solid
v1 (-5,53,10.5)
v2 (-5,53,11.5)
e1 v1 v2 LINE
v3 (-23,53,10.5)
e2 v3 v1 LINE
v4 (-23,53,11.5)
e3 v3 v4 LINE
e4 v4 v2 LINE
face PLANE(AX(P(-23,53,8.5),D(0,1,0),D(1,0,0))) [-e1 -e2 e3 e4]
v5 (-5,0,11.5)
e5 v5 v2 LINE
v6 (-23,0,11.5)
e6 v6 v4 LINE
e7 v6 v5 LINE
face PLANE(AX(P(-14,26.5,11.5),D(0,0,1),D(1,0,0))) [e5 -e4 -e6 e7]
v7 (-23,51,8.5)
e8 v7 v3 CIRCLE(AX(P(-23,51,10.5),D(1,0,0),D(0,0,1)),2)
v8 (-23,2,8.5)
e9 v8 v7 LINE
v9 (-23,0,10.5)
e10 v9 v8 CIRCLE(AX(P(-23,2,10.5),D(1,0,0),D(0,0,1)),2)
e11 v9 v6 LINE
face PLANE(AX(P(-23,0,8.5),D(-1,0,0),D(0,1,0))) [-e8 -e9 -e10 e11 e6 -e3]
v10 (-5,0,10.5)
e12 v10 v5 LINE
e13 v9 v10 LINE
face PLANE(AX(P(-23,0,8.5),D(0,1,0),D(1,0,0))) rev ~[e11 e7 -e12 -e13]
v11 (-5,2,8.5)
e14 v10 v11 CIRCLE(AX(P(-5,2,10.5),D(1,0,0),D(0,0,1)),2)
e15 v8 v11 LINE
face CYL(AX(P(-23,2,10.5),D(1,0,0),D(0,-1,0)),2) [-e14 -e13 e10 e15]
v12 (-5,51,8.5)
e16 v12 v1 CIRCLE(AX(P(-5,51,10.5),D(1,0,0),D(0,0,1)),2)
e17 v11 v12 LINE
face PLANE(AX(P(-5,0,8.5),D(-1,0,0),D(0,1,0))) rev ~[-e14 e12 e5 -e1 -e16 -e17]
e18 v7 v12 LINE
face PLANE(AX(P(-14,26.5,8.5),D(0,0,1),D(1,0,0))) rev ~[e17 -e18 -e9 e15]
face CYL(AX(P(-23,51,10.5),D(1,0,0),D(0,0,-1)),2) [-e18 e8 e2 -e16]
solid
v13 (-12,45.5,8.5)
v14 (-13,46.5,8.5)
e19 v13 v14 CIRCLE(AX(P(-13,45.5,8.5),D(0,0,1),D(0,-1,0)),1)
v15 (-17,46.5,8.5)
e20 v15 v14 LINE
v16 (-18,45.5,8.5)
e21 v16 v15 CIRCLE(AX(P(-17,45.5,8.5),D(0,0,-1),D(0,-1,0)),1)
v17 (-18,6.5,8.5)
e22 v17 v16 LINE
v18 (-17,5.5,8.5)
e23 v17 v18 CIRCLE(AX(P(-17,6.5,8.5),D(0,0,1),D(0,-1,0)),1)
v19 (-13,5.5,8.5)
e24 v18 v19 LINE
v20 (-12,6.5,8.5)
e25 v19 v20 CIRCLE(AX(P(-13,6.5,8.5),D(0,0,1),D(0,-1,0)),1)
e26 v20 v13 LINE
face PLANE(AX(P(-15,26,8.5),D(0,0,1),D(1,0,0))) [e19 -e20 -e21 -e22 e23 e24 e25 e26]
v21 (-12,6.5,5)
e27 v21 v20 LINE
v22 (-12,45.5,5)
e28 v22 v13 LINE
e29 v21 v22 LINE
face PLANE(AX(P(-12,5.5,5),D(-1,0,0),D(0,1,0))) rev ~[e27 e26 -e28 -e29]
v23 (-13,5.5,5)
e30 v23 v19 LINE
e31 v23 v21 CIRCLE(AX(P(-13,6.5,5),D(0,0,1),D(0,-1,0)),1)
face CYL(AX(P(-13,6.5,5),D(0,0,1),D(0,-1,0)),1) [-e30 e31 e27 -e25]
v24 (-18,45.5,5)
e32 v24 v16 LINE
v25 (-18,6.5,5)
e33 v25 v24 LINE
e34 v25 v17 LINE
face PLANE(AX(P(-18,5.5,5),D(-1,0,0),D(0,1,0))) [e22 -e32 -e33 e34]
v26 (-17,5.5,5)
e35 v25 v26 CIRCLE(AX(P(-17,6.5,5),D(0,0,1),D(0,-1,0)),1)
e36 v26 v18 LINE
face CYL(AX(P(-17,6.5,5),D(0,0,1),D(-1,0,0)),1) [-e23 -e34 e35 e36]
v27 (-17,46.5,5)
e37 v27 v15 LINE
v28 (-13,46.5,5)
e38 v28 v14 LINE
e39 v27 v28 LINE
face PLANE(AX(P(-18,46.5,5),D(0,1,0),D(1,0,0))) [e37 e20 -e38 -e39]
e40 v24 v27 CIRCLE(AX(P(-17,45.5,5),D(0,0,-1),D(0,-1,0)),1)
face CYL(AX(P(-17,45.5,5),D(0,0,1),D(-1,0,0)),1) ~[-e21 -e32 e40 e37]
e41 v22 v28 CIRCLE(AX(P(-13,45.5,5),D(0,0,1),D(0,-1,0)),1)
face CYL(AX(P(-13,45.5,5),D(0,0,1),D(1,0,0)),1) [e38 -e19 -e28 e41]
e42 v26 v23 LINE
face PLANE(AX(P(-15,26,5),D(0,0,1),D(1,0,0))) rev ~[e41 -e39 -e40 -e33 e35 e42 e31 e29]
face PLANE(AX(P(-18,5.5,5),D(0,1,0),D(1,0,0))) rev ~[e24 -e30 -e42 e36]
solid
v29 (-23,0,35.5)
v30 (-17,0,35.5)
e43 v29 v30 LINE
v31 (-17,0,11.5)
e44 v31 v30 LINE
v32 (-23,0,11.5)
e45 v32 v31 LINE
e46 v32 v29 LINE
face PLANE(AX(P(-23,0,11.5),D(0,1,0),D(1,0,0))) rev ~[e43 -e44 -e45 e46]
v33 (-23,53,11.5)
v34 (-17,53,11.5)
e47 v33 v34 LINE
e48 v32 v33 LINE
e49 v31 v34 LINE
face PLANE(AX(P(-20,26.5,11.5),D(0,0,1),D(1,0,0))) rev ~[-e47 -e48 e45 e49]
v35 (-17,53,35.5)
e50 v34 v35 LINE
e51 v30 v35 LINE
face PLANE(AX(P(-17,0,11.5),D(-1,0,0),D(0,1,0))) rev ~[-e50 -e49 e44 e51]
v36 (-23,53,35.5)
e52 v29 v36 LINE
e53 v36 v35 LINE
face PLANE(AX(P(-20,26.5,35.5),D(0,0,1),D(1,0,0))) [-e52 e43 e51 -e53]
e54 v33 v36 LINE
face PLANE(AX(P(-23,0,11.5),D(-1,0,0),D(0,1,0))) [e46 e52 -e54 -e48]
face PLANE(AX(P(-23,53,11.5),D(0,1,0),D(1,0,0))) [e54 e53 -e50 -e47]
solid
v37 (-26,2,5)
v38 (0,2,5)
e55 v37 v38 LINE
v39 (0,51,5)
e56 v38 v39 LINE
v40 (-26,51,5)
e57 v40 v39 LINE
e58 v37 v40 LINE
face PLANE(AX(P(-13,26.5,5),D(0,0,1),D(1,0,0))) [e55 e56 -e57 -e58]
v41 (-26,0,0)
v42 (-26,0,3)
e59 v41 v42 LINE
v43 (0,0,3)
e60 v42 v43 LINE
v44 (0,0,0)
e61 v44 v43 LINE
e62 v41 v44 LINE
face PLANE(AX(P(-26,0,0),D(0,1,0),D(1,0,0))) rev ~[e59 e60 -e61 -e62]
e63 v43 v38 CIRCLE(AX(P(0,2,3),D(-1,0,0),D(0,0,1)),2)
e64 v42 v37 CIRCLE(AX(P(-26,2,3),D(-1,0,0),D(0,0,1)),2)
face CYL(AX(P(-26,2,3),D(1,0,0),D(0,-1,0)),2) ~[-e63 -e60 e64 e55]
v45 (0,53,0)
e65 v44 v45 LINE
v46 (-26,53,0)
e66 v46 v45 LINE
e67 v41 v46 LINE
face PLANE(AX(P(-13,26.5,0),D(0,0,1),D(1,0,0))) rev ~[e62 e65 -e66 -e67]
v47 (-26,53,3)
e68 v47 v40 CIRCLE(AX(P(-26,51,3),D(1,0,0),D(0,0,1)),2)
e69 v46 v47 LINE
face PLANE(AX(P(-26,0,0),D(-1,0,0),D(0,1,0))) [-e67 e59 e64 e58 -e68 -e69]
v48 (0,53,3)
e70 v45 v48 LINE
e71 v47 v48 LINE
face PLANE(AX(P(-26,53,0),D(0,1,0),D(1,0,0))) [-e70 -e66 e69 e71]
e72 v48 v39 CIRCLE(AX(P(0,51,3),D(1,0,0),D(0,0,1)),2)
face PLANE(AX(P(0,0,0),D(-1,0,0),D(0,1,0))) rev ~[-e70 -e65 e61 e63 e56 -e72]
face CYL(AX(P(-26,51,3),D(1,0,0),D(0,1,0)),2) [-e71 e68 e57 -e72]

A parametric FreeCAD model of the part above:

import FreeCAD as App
import Part
import Sketcher

V = App.Vector


def edges_at(feature, points):
    """Names of the edges that pass closest to the given points."""
    edges = feature.Shape.Edges
    near = lambda p: min(range(len(edges)), key=lambda i: edges[i].distToShape(Part.Vertex(*p))[0])
    return sorted({f"Edge{near(p) + 1}" for p in points})

doc = App.newDocument("Part")
params = doc.addObject("Spreadsheet::Sheet", "Params")
for row, (alias, value) in enumerate([
    ("sketch1_width", "6 mm"),
    ("sketch1_height", "53 mm"),
    ("pad1_length", "24 mm"),
    ("sketch2_width", "26 mm"),
    ("sketch2_height", "53 mm"),
    ("pad2_length", "5 mm"),
    ("fillet_radius", "2 mm"),
    ("sketch3_width", "18 mm"),
    ("sketch3_height", "53 mm"),
    ("pad3_length", "3 mm"),
    ("fillet2_radius", "2 mm"),
    ("fillet3_radius", "2 mm"),
    ("sketch4_width", "6 mm"),
    ("sketch4_height", "41 mm"),
    ("pad4_length", "3.5 mm"),
    ("fillet4_radius", "1 mm"),
], start=1):
    params.set(f"A{row}", alias)
    params.set(f"B{row}", "=" + value)
    params.setAlias(f"B{row}", alias)

body = doc.addObject("PartDesign::Body", "Body")

sketch1 = body.newObject("Sketcher::SketchObject", "Sketch")
sketch1.AttachmentSupport = (doc.getObject("XY_Plane"), [""])
sketch1.MapMode = "FlatFace"
sketch1.AttachmentOffset = App.Placement(V(0, 0, 11.5), App.Rotation())
sketch1.addGeometry(Part.LineSegment(V(-23, 53, 0), V(-23, 0, 0)), False)
sketch1.addGeometry(Part.LineSegment(V(-23, 0, 0), V(-17, 0, 0)), False)
sketch1.addGeometry(Part.LineSegment(V(-17, 0, 0), V(-17, 53, 0)), False)
sketch1.addGeometry(Part.LineSegment(V(-17, 53, 0), V(-23, 53, 0)), False)
sketch1.addConstraint(Sketcher.Constraint("Coincident", 0, 2, 1, 1))
sketch1.addConstraint(Sketcher.Constraint("Coincident", 1, 2, 2, 1))
sketch1.addConstraint(Sketcher.Constraint("Coincident", 2, 2, 3, 1))
sketch1.addConstraint(Sketcher.Constraint("Coincident", 3, 2, 0, 1))
sketch1.addConstraint(Sketcher.Constraint("Vertical", 0))
sketch1.addConstraint(Sketcher.Constraint("Horizontal", 1))
sketch1.addConstraint(Sketcher.Constraint("Vertical", 2))
sketch1.addConstraint(Sketcher.Constraint("Horizontal", 3))
sketch1.addConstraint(Sketcher.Constraint("PointOnObject", 0, 2, -1))
sketch1.addConstraint(Sketcher.Constraint("DistanceX", 1, 1, 1, 2, 6.0))
sketch1.addConstraint(Sketcher.Constraint("DistanceY", 0, 2, 0, 1, 53.0))
sketch1.addConstraint(Sketcher.Constraint("DistanceX", 0, 2, -1, 1, 23.0))
sketch1.setExpression("Constraints[9]", "Params.sketch1_width")
sketch1.setExpression("Constraints[10]", "Params.sketch1_height")
pad1 = body.newObject("PartDesign::Pad", "Pad")
pad1.Profile = sketch1
pad1.setExpression("Length", "Params.pad1_length")
body2 = doc.addObject("PartDesign::Body", "Body001")

sketch2 = body2.newObject("Sketcher::SketchObject", "Sketch001")
sketch2.AttachmentSupport = (doc.getObject("XY_Plane001"), [""])
sketch2.MapMode = "FlatFace"
sketch2.addGeometry(Part.LineSegment(V(-26, 53, 0), V(-26, 0, 0)), False)
sketch2.addGeometry(Part.LineSegment(V(-26, 0, 0), V(0, 0, 0)), False)
sketch2.addGeometry(Part.LineSegment(V(0, 0, 0), V(0, 53, 0)), False)
sketch2.addGeometry(Part.LineSegment(V(0, 53, 0), V(-26, 53, 0)), False)
sketch2.addConstraint(Sketcher.Constraint("Coincident", 0, 2, 1, 1))
sketch2.addConstraint(Sketcher.Constraint("Coincident", 1, 2, 2, 1))
sketch2.addConstraint(Sketcher.Constraint("Coincident", 2, 2, 3, 1))
sketch2.addConstraint(Sketcher.Constraint("Coincident", 3, 2, 0, 1))
sketch2.addConstraint(Sketcher.Constraint("Vertical", 0))
sketch2.addConstraint(Sketcher.Constraint("Horizontal", 1))
sketch2.addConstraint(Sketcher.Constraint("Vertical", 2))
sketch2.addConstraint(Sketcher.Constraint("Horizontal", 3))
sketch2.addConstraint(Sketcher.Constraint("Coincident", 1, 2, -1, 1))
sketch2.addConstraint(Sketcher.Constraint("DistanceX", 1, 1, 1, 2, 26.0))
sketch2.addConstraint(Sketcher.Constraint("DistanceY", 0, 2, 0, 1, 53.0))
sketch2.setExpression("Constraints[9]", "Params.sketch2_width")
sketch2.setExpression("Constraints[10]", "Params.sketch2_height")
pad2 = body2.newObject("PartDesign::Pad", "Pad001")
pad2.Profile = sketch2
pad2.setExpression("Length", "Params.pad2_length")
doc.recompute()

fillet = body2.newObject("PartDesign::Fillet", "Fillet")
fillet.Base = (pad2, edges_at(pad2, [(-13, 0, 5), (-13, 53, 5)]))
fillet.setExpression("Radius", "Params.fillet_radius")
body3 = doc.addObject("PartDesign::Body", "Body002")

sketch3 = body3.newObject("Sketcher::SketchObject", "Sketch002")
sketch3.AttachmentSupport = (doc.getObject("XY_Plane002"), [""])
sketch3.MapMode = "FlatFace"
sketch3.AttachmentOffset = App.Placement(V(0, 0, 8.5), App.Rotation())
sketch3.addGeometry(Part.LineSegment(V(-23, 53, 0), V(-23, 0, 0)), False)
sketch3.addGeometry(Part.LineSegment(V(-23, 0, 0), V(-5, 0, 0)), False)
sketch3.addGeometry(Part.LineSegment(V(-5, 0, 0), V(-5, 53, 0)), False)
sketch3.addGeometry(Part.LineSegment(V(-5, 53, 0), V(-23, 53, 0)), False)
sketch3.addConstraint(Sketcher.Constraint("Coincident", 0, 2, 1, 1))
sketch3.addConstraint(Sketcher.Constraint("Coincident", 1, 2, 2, 1))
sketch3.addConstraint(Sketcher.Constraint("Coincident", 2, 2, 3, 1))
sketch3.addConstraint(Sketcher.Constraint("Coincident", 3, 2, 0, 1))
sketch3.addConstraint(Sketcher.Constraint("Vertical", 0))
sketch3.addConstraint(Sketcher.Constraint("Horizontal", 1))
sketch3.addConstraint(Sketcher.Constraint("Vertical", 2))
sketch3.addConstraint(Sketcher.Constraint("Horizontal", 3))
sketch3.addConstraint(Sketcher.Constraint("PointOnObject", 0, 2, -1))
sketch3.addConstraint(Sketcher.Constraint("DistanceX", 1, 1, 1, 2, 18.0))
sketch3.addConstraint(Sketcher.Constraint("DistanceY", 0, 2, 0, 1, 53.0))
sketch3.addConstraint(Sketcher.Constraint("DistanceX", 0, 2, -1, 1, 23.0))
sketch3.setExpression("Constraints[9]", "Params.sketch3_width")
sketch3.setExpression("Constraints[10]", "Params.sketch3_height")
pad3 = body3.newObject("PartDesign::Pad", "Pad002")
pad3.Profile = sketch3
pad3.setExpression("Length", "Params.pad3_length")
doc.recompute()

fillet2 = body3.newObject("PartDesign::Fillet", "Fillet001")
fillet2.Base = (pad3, edges_at(pad3, [(-14, 0, 8.5)]))
fillet2.setExpression("Radius", "Params.fillet2_radius")
doc.recompute()

fillet3 = body3.newObject("PartDesign::Fillet", "Fillet002")
fillet3.Base = (fillet2, edges_at(fillet2, [(-14, 53, 8.5)]))
fillet3.setExpression("Radius", "Params.fillet3_radius")
body4 = doc.addObject("PartDesign::Body", "Body003")

sketch4 = body4.newObject("Sketcher::SketchObject", "Sketch003")
sketch4.AttachmentSupport = (doc.getObject("XY_Plane003"), [""])
sketch4.MapMode = "FlatFace"
sketch4.AttachmentOffset = App.Placement(V(0, 0, 5), App.Rotation())
sketch4.addGeometry(Part.LineSegment(V(-18, 46.5, 0), V(-18, 5.5, 0)), False)
sketch4.addGeometry(Part.LineSegment(V(-18, 5.5, 0), V(-12, 5.5, 0)), False)
sketch4.addGeometry(Part.LineSegment(V(-12, 5.5, 0), V(-12, 46.5, 0)), False)
sketch4.addGeometry(Part.LineSegment(V(-12, 46.5, 0), V(-18, 46.5, 0)), False)
sketch4.addConstraint(Sketcher.Constraint("Coincident", 0, 2, 1, 1))
sketch4.addConstraint(Sketcher.Constraint("Coincident", 1, 2, 2, 1))
sketch4.addConstraint(Sketcher.Constraint("Coincident", 2, 2, 3, 1))
sketch4.addConstraint(Sketcher.Constraint("Coincident", 3, 2, 0, 1))
sketch4.addConstraint(Sketcher.Constraint("Vertical", 0))
sketch4.addConstraint(Sketcher.Constraint("Horizontal", 1))
sketch4.addConstraint(Sketcher.Constraint("Vertical", 2))
sketch4.addConstraint(Sketcher.Constraint("Horizontal", 3))
sketch4.addConstraint(Sketcher.Constraint("DistanceX", 1, 1, 1, 2, 6.0))
sketch4.addConstraint(Sketcher.Constraint("DistanceY", 0, 2, 0, 1, 41.0))
sketch4.addConstraint(Sketcher.Constraint("DistanceX", 0, 2, -1, 1, 18.0))
sketch4.addConstraint(Sketcher.Constraint("DistanceY", -1, 1, 0, 2, 5.5))
sketch4.setExpression("Constraints[8]", "Params.sketch4_width")
sketch4.setExpression("Constraints[9]", "Params.sketch4_height")
pad4 = body4.newObject("PartDesign::Pad", "Pad003")
pad4.Profile = sketch4
pad4.setExpression("Length", "Params.pad4_length")
doc.recompute()

fillet4 = body4.newObject("PartDesign::Fillet", "Fillet003")
fillet4.Base = (pad4, edges_at(pad4, [
    (-18, 46.5, 6.75),
    (-12, 46.5, 6.75),
    (-12, 5.5, 6.75),
    (-18, 5.5, 6.75),
]))
fillet4.setExpression("Radius", "Params.fillet4_radius")

doc.recompute()
